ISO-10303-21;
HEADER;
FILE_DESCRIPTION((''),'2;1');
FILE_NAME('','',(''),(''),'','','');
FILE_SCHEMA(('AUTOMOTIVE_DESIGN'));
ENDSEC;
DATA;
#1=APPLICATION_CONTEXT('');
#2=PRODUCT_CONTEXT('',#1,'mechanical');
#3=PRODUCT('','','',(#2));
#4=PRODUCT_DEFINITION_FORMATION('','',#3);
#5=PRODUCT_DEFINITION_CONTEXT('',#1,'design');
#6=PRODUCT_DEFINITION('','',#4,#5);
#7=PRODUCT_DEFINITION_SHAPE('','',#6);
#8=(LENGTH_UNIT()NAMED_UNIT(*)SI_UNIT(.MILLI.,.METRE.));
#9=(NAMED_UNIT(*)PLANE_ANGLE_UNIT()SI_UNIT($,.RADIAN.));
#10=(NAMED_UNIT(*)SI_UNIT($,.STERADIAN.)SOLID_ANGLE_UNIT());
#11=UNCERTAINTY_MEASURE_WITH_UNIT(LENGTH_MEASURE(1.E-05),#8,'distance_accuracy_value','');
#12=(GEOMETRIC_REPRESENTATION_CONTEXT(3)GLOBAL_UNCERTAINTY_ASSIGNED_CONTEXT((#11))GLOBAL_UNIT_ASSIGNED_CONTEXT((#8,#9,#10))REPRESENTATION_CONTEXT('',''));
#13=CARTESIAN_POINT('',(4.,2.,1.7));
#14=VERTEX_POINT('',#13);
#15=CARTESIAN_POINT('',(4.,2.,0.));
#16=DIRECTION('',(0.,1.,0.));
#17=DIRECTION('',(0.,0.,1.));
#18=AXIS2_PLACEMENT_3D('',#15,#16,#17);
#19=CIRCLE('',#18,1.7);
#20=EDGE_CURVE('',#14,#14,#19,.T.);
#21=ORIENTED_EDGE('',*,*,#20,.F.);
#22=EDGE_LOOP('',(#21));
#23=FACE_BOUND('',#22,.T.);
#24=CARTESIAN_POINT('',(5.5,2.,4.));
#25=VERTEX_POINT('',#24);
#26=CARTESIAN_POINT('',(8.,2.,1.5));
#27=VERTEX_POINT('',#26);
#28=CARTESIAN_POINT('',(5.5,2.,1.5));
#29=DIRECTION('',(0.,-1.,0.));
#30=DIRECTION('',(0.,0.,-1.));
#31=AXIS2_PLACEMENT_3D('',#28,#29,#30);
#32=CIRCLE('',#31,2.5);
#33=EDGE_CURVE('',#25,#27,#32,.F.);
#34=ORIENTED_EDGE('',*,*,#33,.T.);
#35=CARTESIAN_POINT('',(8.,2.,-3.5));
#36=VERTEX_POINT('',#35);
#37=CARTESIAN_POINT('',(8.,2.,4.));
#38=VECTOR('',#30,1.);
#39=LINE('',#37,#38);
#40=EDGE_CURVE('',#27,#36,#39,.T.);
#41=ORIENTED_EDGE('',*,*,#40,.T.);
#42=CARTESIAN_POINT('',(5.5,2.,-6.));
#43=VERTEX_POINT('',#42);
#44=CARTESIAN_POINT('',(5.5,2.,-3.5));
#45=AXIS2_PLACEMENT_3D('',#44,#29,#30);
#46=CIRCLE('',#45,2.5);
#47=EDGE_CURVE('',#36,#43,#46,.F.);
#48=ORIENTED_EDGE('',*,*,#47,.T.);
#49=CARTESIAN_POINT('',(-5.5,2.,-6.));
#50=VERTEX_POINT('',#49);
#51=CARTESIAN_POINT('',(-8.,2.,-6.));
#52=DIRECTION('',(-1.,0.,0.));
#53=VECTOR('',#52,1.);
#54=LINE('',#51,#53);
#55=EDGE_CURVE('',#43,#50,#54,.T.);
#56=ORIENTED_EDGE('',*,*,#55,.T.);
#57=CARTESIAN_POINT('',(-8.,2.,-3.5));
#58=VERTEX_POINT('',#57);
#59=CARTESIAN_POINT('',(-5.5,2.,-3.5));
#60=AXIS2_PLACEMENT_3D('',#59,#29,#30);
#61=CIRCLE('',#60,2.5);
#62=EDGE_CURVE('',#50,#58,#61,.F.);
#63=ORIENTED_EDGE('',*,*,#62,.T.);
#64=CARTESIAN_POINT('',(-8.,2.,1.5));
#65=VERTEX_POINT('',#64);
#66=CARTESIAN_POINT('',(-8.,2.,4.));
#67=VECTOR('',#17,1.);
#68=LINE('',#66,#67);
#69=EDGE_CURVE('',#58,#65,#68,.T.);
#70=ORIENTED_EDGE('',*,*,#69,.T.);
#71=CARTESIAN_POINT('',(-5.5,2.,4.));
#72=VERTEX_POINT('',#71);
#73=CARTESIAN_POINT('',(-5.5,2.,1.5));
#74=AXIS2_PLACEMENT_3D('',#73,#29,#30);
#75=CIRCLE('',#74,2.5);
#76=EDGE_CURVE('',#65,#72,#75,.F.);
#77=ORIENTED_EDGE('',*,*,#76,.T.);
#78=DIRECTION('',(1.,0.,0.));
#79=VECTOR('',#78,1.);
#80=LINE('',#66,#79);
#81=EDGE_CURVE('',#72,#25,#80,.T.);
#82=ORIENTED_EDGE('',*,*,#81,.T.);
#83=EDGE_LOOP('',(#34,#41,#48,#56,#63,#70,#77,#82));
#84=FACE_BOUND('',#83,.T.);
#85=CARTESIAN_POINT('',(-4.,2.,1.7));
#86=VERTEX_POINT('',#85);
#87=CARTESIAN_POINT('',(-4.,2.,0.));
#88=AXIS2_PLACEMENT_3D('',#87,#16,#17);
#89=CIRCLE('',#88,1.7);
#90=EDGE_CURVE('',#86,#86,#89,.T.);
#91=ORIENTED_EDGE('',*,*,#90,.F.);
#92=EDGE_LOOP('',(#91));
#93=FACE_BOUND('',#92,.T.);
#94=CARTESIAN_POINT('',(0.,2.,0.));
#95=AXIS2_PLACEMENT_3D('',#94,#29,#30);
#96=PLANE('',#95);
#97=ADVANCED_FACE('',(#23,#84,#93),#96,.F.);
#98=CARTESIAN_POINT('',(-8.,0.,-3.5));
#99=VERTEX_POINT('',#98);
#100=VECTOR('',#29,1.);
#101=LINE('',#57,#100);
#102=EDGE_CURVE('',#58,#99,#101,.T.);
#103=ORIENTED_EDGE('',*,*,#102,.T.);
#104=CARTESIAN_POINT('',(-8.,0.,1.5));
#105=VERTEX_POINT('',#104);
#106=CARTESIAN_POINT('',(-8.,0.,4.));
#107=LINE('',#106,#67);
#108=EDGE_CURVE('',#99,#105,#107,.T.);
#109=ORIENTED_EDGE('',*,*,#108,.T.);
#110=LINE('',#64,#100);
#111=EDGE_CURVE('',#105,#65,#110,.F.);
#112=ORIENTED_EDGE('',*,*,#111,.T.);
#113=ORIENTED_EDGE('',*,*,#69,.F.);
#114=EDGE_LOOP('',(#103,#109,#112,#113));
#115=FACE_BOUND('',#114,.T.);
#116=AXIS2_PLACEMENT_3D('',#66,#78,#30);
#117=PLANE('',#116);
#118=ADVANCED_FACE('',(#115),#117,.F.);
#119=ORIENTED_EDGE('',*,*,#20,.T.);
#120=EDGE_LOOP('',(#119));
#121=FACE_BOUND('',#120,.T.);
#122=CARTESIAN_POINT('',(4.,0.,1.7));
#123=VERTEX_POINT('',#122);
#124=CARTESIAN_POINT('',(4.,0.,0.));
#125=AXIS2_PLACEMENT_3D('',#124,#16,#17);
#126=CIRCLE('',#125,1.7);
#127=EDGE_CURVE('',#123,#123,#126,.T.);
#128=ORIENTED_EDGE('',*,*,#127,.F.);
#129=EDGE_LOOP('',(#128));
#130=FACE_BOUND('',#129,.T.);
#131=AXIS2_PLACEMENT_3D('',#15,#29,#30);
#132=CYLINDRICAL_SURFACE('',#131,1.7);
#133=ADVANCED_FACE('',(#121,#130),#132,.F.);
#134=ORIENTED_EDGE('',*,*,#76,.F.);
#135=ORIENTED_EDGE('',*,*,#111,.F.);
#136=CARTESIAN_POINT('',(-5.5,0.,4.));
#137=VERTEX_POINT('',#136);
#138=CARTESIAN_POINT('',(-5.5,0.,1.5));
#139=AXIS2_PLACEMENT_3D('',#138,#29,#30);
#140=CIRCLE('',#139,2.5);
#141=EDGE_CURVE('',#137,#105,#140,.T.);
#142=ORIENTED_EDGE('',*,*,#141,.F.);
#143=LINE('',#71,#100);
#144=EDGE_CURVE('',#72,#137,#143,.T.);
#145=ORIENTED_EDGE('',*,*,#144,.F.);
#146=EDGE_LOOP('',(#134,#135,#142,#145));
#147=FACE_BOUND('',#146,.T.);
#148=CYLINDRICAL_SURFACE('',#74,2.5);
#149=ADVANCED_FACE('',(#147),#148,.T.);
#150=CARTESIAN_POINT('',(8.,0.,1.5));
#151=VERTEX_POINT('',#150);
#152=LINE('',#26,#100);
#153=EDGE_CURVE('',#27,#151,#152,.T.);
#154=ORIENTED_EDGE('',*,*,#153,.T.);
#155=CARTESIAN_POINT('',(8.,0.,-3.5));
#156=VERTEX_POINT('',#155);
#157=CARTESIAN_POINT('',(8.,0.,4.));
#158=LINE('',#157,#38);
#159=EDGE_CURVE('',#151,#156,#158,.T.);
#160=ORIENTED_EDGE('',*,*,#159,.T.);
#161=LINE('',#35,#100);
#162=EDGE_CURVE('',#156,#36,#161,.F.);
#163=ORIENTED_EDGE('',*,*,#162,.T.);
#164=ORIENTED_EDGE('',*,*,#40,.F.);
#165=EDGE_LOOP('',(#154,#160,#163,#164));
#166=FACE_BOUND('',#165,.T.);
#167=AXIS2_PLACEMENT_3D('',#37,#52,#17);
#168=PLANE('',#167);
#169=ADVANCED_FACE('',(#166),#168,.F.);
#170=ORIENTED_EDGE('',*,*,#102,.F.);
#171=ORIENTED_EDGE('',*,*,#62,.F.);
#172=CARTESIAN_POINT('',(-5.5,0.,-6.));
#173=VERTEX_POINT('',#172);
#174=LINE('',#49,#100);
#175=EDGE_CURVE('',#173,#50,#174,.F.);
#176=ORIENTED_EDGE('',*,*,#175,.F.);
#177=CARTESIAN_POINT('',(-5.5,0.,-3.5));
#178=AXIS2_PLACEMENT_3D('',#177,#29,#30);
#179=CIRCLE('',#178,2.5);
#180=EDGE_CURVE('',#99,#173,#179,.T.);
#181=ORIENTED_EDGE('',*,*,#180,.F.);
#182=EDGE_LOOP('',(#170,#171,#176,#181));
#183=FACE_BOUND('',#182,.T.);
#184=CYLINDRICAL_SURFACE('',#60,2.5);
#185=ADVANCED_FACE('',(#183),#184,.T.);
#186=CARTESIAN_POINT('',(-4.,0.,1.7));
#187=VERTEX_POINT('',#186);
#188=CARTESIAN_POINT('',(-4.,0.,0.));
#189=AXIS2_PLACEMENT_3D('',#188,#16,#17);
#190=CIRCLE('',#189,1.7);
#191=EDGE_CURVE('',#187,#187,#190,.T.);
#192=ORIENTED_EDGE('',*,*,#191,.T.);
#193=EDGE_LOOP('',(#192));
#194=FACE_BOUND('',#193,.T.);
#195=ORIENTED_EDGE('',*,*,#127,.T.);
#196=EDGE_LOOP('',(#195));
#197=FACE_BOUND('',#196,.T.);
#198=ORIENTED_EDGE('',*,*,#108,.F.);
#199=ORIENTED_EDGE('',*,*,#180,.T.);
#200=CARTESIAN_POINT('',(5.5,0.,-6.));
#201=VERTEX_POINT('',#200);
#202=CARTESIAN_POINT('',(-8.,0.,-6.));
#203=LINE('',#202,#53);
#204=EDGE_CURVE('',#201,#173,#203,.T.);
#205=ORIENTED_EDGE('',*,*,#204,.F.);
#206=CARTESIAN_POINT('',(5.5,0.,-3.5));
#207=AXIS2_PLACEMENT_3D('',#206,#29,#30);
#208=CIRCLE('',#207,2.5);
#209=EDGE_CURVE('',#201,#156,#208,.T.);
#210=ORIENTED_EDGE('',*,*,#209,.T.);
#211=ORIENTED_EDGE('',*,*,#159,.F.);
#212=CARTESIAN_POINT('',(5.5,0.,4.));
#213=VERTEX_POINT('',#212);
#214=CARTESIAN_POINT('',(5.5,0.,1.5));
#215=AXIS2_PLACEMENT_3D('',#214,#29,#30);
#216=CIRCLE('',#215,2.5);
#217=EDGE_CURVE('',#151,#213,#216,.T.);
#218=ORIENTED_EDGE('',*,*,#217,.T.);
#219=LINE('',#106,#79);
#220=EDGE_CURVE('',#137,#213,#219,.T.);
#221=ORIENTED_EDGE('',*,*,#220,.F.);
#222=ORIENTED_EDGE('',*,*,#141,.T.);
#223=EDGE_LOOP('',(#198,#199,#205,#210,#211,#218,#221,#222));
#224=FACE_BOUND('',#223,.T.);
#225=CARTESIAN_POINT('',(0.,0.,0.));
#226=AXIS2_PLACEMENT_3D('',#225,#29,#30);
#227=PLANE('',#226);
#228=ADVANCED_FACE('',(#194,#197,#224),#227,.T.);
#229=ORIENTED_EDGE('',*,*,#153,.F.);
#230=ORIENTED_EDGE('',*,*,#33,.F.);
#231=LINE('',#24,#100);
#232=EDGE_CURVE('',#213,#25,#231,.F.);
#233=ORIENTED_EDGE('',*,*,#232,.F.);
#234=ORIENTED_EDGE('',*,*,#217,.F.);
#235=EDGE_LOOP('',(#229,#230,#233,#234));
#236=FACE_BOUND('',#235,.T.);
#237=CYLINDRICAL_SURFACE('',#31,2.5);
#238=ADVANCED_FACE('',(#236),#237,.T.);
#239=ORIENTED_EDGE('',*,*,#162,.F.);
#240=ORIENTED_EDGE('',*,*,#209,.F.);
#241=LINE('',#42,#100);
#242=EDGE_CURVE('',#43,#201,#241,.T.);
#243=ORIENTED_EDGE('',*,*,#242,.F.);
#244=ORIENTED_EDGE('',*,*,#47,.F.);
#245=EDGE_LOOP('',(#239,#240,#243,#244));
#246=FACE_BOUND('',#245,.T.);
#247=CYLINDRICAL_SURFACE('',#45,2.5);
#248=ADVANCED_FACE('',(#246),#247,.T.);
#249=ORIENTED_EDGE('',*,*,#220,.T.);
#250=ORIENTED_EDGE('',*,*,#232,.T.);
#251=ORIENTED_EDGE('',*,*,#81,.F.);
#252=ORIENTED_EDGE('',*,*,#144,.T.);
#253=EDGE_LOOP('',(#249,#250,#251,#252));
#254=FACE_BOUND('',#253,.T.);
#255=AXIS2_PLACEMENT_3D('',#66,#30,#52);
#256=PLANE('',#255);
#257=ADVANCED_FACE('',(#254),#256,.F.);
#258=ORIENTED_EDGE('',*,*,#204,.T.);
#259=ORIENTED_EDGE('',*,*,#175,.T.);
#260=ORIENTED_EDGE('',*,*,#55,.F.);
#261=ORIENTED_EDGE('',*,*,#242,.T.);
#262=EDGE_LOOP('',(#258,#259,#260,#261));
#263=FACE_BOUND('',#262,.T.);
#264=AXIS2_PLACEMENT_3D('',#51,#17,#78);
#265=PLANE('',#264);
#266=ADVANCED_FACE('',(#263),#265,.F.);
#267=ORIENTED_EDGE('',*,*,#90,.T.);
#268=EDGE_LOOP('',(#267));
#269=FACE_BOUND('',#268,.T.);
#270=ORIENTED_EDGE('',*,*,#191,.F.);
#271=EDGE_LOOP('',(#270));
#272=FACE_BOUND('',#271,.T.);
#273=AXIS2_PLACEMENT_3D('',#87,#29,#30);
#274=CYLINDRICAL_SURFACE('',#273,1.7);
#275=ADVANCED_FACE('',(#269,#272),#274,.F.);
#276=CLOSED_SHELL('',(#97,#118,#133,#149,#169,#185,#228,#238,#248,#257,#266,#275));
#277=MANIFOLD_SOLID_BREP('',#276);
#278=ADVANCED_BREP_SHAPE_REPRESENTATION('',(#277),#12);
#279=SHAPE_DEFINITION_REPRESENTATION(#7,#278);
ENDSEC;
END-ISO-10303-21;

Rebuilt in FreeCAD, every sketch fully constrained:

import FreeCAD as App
import Part
import Sketcher

V = App.Vector


def edges_at(feature, points):
    """Names of the edges that pass closest to the given points."""
    edges = feature.Shape.Edges
    near = lambda p: min(range(len(edges)), key=lambda i: edges[i].distToShape(Part.Vertex(*p))[0])
    return sorted({f"Edge{near(p) + 1}" for p in points})


def add_polygon(sketch, points):
    """Adds a closed chain of lines whose ends are joined by coincident constraints."""
    first, n = sketch.GeometryCount, len(points)
    for a, b in zip(points, points[1:] + points[:1]):
        sketch.addGeometry(Part.LineSegment(App.Vector(*a, 0), App.Vector(*b, 0)), False)
    for i in range(n):
        sketch.addConstraint(Sketcher.Constraint("Coincident", first + i, 2, first + (i + 1) % n, 1))

doc = App.newDocument("Part")
body = doc.addObject("PartDesign::Body", "Body")

# Sketch on XZ plane
sketch1 = doc.addObject("Sketcher::SketchObject", "Sketch")
body.addObject(sketch1)
sketch1.AttachmentSupport = (doc.XZ_Plane, [""])
sketch1.MapMode = "FlatFace"
add_polygon(sketch1, [(-8, -6), (-8, 4), (8, 4), (8, -6)])  # lines 0-3
sketch1.addGeometry(Part.Circle(V(-4, 0, 0), V(0, 0, 1), 1.7), False)  # 4
sketch1.addGeometry(Part.Circle(V(4, 0, 0), V(0, 0, 1), 1.7), False)  # 5
sketch1.addConstraint([
    Sketcher.Constraint("Vertical", 0),
    Sketcher.Constraint("Horizontal", 1),
    Sketcher.Constraint("Vertical", 2),
    Sketcher.Constraint("Horizontal", 3),
    Sketcher.Constraint("Equal", 4, 5),
    Sketcher.Constraint("Symmetric", 4, 3, 5, 3, -1, 1),
    Sketcher.Constraint("PointOnObject", 4, 3, -1),
    Sketcher.Constraint("Diameter", 4, 3.4),
    Sketcher.Constraint("DistanceX", 1, 1, 1, 2, 16.0),
    Sketcher.Constraint("DistanceY", 0, 1, 0, 2, 10.0),
    Sketcher.Constraint("DistanceX", 4, 3, -1, 1, 4.0),
    Sketcher.Constraint("DistanceX", 0, 2, -1, 1, 8.0),
    Sketcher.Constraint("DistanceY", -1, 1, 0, 2, 4.0),
])
pad1 = doc.addObject("PartDesign::Pad", "Pad")
body.addObject(pad1)
pad1.Profile = sketch1
pad1.Length = 2
pad1.Reversed = True
doc.recompute()

fillet = doc.addObject("PartDesign::Fillet", "Fillet")
body.addObject(fillet)
fillet.Base = (pad1, edges_at(pad1, [
    (8, 1, 4),
    (-8, 1, 4),
    (-8, 1, -6),
    (8, 1, -6),
]))
fillet.Radius = 2.5

doc.recompute()
